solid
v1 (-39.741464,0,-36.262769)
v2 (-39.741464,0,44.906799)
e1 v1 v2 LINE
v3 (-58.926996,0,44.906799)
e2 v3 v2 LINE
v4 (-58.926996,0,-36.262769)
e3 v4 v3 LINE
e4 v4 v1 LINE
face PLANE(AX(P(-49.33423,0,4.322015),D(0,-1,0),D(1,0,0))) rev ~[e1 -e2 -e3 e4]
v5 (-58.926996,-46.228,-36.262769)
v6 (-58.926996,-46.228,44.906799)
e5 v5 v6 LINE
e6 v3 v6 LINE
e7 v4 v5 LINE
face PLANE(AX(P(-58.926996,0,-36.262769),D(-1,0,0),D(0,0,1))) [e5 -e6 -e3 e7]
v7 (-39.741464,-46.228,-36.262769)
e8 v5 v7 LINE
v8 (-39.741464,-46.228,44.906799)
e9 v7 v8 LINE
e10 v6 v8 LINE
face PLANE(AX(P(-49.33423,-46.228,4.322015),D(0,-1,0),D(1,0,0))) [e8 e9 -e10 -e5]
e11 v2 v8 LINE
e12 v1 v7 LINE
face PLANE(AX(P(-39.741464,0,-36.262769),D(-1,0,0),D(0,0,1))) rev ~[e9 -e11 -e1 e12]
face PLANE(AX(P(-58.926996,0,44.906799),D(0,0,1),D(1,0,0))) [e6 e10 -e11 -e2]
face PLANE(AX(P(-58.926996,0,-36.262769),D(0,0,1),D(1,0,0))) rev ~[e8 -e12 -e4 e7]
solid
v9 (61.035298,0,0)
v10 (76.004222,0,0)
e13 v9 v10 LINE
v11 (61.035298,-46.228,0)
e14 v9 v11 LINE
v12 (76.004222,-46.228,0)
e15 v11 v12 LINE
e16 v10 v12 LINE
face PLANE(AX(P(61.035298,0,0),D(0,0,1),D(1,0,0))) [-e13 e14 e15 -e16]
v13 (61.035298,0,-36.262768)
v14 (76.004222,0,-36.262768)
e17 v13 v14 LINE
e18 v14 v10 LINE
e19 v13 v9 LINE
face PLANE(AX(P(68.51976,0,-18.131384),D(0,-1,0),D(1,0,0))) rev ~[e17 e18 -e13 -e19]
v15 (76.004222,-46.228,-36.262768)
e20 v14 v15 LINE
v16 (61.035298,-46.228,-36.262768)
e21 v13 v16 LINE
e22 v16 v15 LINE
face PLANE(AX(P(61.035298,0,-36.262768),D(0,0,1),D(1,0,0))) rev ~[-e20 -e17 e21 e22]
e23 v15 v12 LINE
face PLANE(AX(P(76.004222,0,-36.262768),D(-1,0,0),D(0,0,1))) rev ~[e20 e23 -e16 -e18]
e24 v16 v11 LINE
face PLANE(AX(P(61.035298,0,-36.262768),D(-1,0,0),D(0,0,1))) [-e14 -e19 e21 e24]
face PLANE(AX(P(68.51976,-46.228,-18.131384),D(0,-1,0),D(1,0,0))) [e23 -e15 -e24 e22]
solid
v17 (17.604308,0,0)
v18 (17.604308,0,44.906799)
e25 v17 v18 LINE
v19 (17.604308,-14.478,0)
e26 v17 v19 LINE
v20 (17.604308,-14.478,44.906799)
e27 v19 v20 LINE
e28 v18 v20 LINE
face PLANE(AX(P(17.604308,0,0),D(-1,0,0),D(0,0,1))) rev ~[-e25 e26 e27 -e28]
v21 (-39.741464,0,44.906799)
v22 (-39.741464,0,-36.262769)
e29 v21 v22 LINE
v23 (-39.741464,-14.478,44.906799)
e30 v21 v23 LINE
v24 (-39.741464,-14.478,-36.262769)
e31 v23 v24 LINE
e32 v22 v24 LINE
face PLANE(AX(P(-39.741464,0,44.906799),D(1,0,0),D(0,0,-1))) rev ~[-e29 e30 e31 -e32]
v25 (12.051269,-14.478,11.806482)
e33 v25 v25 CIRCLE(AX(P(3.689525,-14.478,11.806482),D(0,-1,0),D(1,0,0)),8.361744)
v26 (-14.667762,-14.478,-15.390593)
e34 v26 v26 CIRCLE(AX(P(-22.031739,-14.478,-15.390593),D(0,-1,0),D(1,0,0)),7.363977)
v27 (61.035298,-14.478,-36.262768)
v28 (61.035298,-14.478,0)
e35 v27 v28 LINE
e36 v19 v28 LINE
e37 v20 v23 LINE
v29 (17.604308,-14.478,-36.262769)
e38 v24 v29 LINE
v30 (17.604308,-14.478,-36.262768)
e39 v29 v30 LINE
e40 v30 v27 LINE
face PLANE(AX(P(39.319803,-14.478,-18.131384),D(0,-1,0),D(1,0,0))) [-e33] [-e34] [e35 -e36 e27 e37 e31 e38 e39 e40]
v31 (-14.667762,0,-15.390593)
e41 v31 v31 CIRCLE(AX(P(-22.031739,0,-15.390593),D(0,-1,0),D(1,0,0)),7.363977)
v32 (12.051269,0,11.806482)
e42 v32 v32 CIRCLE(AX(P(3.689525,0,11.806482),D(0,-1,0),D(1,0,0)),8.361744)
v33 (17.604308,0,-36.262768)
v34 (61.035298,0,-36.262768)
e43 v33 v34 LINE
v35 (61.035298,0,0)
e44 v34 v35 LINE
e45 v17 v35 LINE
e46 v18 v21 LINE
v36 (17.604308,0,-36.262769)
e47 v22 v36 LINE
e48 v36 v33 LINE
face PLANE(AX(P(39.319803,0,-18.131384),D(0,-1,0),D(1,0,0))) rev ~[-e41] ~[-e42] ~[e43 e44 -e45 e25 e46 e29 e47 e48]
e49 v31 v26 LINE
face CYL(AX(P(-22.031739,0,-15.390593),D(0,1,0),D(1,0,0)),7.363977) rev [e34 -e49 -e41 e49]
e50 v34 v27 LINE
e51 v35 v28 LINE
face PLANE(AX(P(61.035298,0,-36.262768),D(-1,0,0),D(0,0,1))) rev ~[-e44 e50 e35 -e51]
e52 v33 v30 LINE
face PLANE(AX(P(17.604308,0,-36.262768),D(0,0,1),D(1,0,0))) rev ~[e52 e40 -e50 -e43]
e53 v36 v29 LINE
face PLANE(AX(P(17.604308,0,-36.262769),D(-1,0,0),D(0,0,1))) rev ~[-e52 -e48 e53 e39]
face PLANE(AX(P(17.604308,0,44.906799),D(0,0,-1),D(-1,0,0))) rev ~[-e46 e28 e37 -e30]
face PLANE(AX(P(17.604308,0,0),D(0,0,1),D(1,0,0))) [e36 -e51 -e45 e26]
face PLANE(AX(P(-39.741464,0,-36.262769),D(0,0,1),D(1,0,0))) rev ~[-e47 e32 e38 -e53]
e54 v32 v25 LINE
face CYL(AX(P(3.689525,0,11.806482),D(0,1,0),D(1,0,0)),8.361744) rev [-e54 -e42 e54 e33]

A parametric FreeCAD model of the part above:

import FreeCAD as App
import Part
import Sketcher
from FreeCAD import Vector
Q = App.Units.Quantity

doc = App.newDocument("Part")
body = doc.addObject("PartDesign::Body", "Body")
body.AllowCompound = True

# Sketch on XZ plane
sketch1 = body.newObject("Sketcher::SketchObject", "Sketch")
sketch1.AttachmentSupport = (doc.getObject("XZ_Plane"), [""])
sketch1.MapMode = "FlatFace"
sketch1.addGeometry([
    Part.LineSegment(Vector(-59, 45, 0), Vector(-59, -36, 0)),  # 0
    Part.LineSegment(Vector(-59, -36, 0), Vector(-40, -36, 0)),  # 1
    Part.LineSegment(Vector(-40, -36, 0), Vector(-40, 45, 0)),  # 2
    Part.LineSegment(Vector(-40, 45, 0), Vector(-59, 45, 0)),  # 3
    Part.LineSegment(Vector(61, 0, 0), Vector(61, -36, 0)),  # 4
    Part.LineSegment(Vector(61, -36, 0), Vector(76, -36, 0)),  # 5
    Part.LineSegment(Vector(76, -36, 0), Vector(76, 0, 0)),  # 6
    Part.LineSegment(Vector(76, 0, 0), Vector(61, 0, 0)),  # 7
], False)
sketch1.addConstraint([
    Sketcher.Constraint("Coincident", 0, 2, 1, 1),
    Sketcher.Constraint("Coincident", 1, 2, 2, 1),
    Sketcher.Constraint("Coincident", 2, 2, 3, 1),
    Sketcher.Constraint("Coincident", 3, 2, 0, 1),
    Sketcher.Constraint("Coincident", 4, 2, 5, 1),
    Sketcher.Constraint("Coincident", 5, 2, 6, 1),
    Sketcher.Constraint("Coincident", 6, 2, 7, 1),
    Sketcher.Constraint("Coincident", 7, 2, 4, 1),
    Sketcher.Constraint("Vertical", 0),
    Sketcher.Constraint("Horizontal", 1),
    Sketcher.Constraint("Vertical", 2),
    Sketcher.Constraint("Horizontal", 3),
    Sketcher.Constraint("Vertical", 4),
    Sketcher.Constraint("Horizontal", 5),
    Sketcher.Constraint("Vertical", 6),
    Sketcher.Constraint("Horizontal", 7),
    Sketcher.Constraint("PointOnObject", 6, 2, -1),
    Sketcher.Constraint("Horizontal", 1, 2, 4, 2),
    Sketcher.Constraint("DistanceY", 0, 2, 0, 1, Q("81.169568 mm")),
    Sketcher.Constraint("DistanceY", 4, 2, 4, 1, Q("36.262769 mm")),
    Sketcher.Constraint("DistanceX", 1, 1, 1, 2, Q("19.185532 mm")),
    Sketcher.Constraint("DistanceX", 5, 1, 5, 2, Q("14.968924 mm")),
    Sketcher.Constraint("DistanceX", -1, 1, 5, 2, Q("76.004222 mm")),
    Sketcher.Constraint("DistanceX", 1, 2, 4, 2, Q("100.776762 mm")),
])
pad1 = body.newObject("PartDesign::Pad", "Pad")
pad1.Profile = sketch1
pad1.Length = Q("1.82 in")
body2 = doc.addObject("PartDesign::Body", "Body001")

# Sketch on XZ plane
sketch2 = body2.newObject("Sketcher::SketchObject", "Sketch001")
sketch2.AttachmentSupport = (doc.getObject("XZ_Plane001"), [""])
sketch2.MapMode = "FlatFace"
sketch2.addGeometry([
    Part.LineSegment(Vector(17.604308, -36.262768, 0), Vector(61.035298, -36.262768, 0)),  # 0
    Part.LineSegment(Vector(61.035298, -36.262768, 0), Vector(61.035298, 0, 0)),  # 1
    Part.LineSegment(Vector(61.035298, 0, 0), Vector(17.604308, 0, 0)),  # 2
    Part.LineSegment(Vector(17.604308, 0, 0), Vector(17.604308, 44.906799, 0)),  # 3
    Part.LineSegment(Vector(17.604308, 44.906799, 0), Vector(-39.741464, 44.906799, 0)),  # 4
    Part.LineSegment(Vector(-39.741464, 44.906799, 0), Vector(-39.741464, -36.262769, 0)),  # 5
    Part.LineSegment(Vector(-39.741464, -36.262769, 0), Vector(17.604308, -36.262769, 0)),  # 6
    Part.LineSegment(Vector(17.604308, -36.262768, 0), Vector(17.604308, -36.262769, 0)),  # 7
    Part.Circle(Vector(-22.031739, -15.390593, 0), Vector(0, 0, 1), 7.363977),  # 8
    Part.Circle(Vector(3.689525, 11.806482, 0), Vector(0, 0, 1), 8.361744),  # 9
], False)
sketch2.addConstraint([
    Sketcher.Constraint("Coincident", 0, 2, 1, 1),
    Sketcher.Constraint("Coincident", 1, 2, 2, 1),
    Sketcher.Constraint("Coincident", 2, 2, 3, 1),
    Sketcher.Constraint("Coincident", 3, 2, 4, 1),
    Sketcher.Constraint("Coincident", 4, 2, 5, 1),
    Sketcher.Constraint("Coincident", 5, 2, 6, 1),
    Sketcher.Constraint("Coincident", 6, 2, 7, 1),
    Sketcher.Constraint("Coincident", 7, 2, 0, 1),
    Sketcher.Constraint("Horizontal", 0),
    Sketcher.Constraint("Vertical", 1),
    Sketcher.Constraint("Horizontal", 2),
    Sketcher.Constraint("Vertical", 3),
    Sketcher.Constraint("Horizontal", 4),
    Sketcher.Constraint("Vertical", 5),
    Sketcher.Constraint("Horizontal", 6),
    Sketcher.Constraint("Horizontal", 7),
    Sketcher.Constraint("PointOnObject", 1, 2, -1),
    Sketcher.Constraint("Diameter", 8, Q("14.727954 mm")),
    Sketcher.Constraint("Diameter", 9, Q("16.723488 mm")),
    Sketcher.Constraint("DistanceY", 3, 1, 3, 2, Q("44.906799 mm")),
    Sketcher.Constraint("DistanceX", 0, 1, 0, 2, Q("43.43099 mm")),
    Sketcher.Constraint("DistanceX", 2, 2, 2, 1, Q("43.43099 mm")),
    Sketcher.Constraint("DistanceX", 4, 2, 4, 1, Q("57.345772 mm")),
    Sketcher.Constraint("DistanceX", 6, 1, 6, 2, Q("57.345772 mm")),
    Sketcher.Constraint("DistanceY", 1, 1, 1, 2, Q("36.262769 mm")),
    Sketcher.Constraint("DistanceX", 8, 3, -1, 1, Q("22.031739 mm")),
    Sketcher.Constraint("DistanceY", 0, 2, 9, 3, Q("48.069251 mm")),
    Sketcher.Constraint("DistanceX", 4, 2, 9, 3, Q("43.430989 mm")),
    Sketcher.Constraint("DistanceY", 8, 3, -1, 1, Q("15.390593 mm")),
    Sketcher.Constraint("DistanceX", -1, 1, 9, 3, Q("3.689525 mm")),
])
pad2 = body2.newObject("PartDesign::Pad", "Pad001")
pad2.Profile = sketch2
pad2.Length = Q("0.57 in")

doc.recompute()
